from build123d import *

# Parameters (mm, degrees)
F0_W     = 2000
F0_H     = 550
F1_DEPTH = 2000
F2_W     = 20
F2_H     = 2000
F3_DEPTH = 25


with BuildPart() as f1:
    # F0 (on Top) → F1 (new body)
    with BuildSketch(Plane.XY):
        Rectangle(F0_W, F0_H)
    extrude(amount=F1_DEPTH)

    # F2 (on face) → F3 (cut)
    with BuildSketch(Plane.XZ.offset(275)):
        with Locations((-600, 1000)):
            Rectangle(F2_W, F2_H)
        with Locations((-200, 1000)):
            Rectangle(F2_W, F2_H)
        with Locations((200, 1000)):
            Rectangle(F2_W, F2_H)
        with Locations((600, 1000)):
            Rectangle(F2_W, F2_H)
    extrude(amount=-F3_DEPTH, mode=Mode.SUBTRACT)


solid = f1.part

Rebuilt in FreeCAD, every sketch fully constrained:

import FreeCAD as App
import Part
import Sketcher
Q = App.Units.Quantity


def add_polygon(sketch, points):
    """Adds a closed chain of lines whose ends are joined by coincident constraints."""
    first, n = sketch.GeometryCount, len(points)
    for a, b in zip(points, points[1:] + points[:1]):
        sketch.addGeometry(Part.LineSegment(App.Vector(*a, 0), App.Vector(*b, 0)), False)
    for i in range(n):
        sketch.addConstraint(Sketcher.Constraint("Coincident", first + i, 2, first + (i + 1) % n, 1))

doc = App.newDocument("Part")
params = doc.addObject("Spreadsheet::Sheet", "Params")
for row, (alias, value) in enumerate([
    ("sketch1_width", "2000 mm"),
    ("sketch1_height", "550 mm"),
    ("pad1_length", "2000 mm"),
    ("sketch2_width", "20 mm"),
    ("sketch2_height", "2000 mm"),
    ("pocket1_length", "25 mm"),
], start=1):
    params.set(f"A{row}", alias)
    params.set(f"B{row}", "=" + value)
    params.setAlias(f"B{row}", alias)

body = doc.addObject("PartDesign::Body", "Body")

# Sketch on XY plane
sketch1 = body.newObject("Sketcher::SketchObject", "Sketch")
sketch1.AttachmentSupport = (doc.getObject("XY_Plane"), [""])
sketch1.MapMode = "FlatFace"
add_polygon(sketch1, [(-1000, 275), (-1000, -275), (1000, -275), (1000, 275)])  # lines 0-3
sketch1.addConstraint([
    Sketcher.Constraint("Vertical", 0),
    Sketcher.Constraint("Horizontal", 1),
    Sketcher.Constraint("Vertical", 2),
    Sketcher.Constraint("Horizontal", 3),
    Sketcher.Constraint("Symmetric", 0, 2, 2, 2, -1, 1),
    Sketcher.Constraint("DistanceX", 1, 1, 1, 2, Q("2000 mm")),
    Sketcher.Constraint("DistanceY", 0, 2, 0, 1, Q("550 mm")),
])
sketch1.setExpression("Constraints[9]", "Params.sketch1_width")
sketch1.setExpression("Constraints[10]", "Params.sketch1_height")
pad1 = body.newObject("PartDesign::Pad", "Pad")
pad1.Profile = sketch1
pad1.setExpression("Length", "Params.pad1_length")

# Sketch on XZ plane
sketch2 = body.newObject("Sketcher::SketchObject", "Sketch001")
sketch2.AttachmentSupport = (doc.getObject("XZ_Plane"), [""])
sketch2.MapMode = "FlatFace"
sketch2.AttachmentOffset = App.Placement(App.Vector(0, 0, 275), App.Rotation())
add_polygon(sketch2, [(-610, 2000), (-610, 0), (-590, 0), (-590, 2000)])  # lines 0-3
add_polygon(sketch2, [(-210, 2000), (-210, 0), (-190, 0), (-190, 2000)])  # lines 4-7
add_polygon(sketch2, [(190, 2000), (190, 0), (210, 0), (210, 2000)])  # lines 8-11
add_polygon(sketch2, [(590, 2000), (590, 0), (610, 0), (610, 2000)])  # lines 12-15
sketch2.addConstraint([
    Sketcher.Constraint("Vertical", 0),
    Sketcher.Constraint("Horizontal", 1),
    Sketcher.Constraint("Vertical", 2),
    Sketcher.Constraint("Horizontal", 3),
    Sketcher.Constraint("Vertical", 4),
    Sketcher.Constraint("Horizontal", 5),
    Sketcher.Constraint("Vertical", 6),
    Sketcher.Constraint("Horizontal", 7),
    Sketcher.Constraint("Vertical", 8),
    Sketcher.Constraint("Horizontal", 9),
    Sketcher.Constraint("Vertical", 10),
    Sketcher.Constraint("Horizontal", 11),
    Sketcher.Constraint("Vertical", 12),
    Sketcher.Constraint("Horizontal", 13),
    Sketcher.Constraint("Vertical", 14),
    Sketcher.Constraint("Horizontal", 15),
    Sketcher.Constraint("Symmetric", 5, 2, 8, 2, -1, 1),
    Sketcher.Constraint("Symmetric", 1, 2, 12, 2, -1, 1),
    Sketcher.Constraint("Symmetric", 4, 2, 9, 2, -2),
    Sketcher.Constraint("Symmetric", 0, 2, 13, 2, -2),
    Sketcher.Constraint("Horizontal", 3, 2, 6, 2),
    Sketcher.Constraint("Horizontal", 7, 2, 10, 2),
    Sketcher.Constraint("Horizontal", 11, 2, 14, 2),
    Sketcher.Constraint("Equal", 3, 5),
    Sketcher.Constraint("DistanceX", 1, 1, 1, 2, Q("20 mm")),
    Sketcher.Constraint("DistanceY", 0, 2, 0, 1, Q("2000 mm")),
    Sketcher.Constraint("DistanceX", 0, 2, -1, 1, Q("610 mm")),
    Sketcher.Constraint("DistanceX", 4, 2, -1, 1, Q("210 mm")),
])
sketch2.setExpression("Constraints[40]", "Params.sketch2_width")
sketch2.setExpression("Constraints[41]", "Params.sketch2_height")
pocket1 = body.newObject("PartDesign::Pocket", "Pocket")
pocket1.Profile = sketch2
pocket1.setExpression("Length", "Params.pocket1_length")

doc.recompute()
